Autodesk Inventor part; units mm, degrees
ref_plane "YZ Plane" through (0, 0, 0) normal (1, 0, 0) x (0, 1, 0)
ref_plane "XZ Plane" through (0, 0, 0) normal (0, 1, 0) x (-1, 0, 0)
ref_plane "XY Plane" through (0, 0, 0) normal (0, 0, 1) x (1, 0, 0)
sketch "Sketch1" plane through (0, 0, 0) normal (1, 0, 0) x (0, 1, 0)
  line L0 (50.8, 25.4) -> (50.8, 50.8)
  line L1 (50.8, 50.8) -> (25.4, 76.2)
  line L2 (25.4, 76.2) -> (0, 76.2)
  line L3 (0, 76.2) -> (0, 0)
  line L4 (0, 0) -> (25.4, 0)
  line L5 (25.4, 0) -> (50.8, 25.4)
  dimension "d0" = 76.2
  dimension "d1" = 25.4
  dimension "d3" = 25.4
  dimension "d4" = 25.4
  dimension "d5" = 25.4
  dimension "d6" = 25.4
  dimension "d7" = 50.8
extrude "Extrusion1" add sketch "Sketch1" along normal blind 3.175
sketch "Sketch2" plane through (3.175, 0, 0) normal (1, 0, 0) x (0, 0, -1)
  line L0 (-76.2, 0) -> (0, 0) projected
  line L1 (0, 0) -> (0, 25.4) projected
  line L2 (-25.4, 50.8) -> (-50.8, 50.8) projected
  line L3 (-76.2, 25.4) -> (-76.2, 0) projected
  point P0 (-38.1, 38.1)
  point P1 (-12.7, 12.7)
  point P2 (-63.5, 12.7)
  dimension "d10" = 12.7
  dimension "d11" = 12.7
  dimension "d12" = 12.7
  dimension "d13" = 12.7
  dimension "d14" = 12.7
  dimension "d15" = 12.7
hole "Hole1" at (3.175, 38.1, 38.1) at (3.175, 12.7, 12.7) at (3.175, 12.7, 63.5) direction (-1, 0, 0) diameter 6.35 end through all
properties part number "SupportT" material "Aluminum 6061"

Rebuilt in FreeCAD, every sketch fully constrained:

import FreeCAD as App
import Part
import Sketcher

V = App.Vector
Q = App.Units.Quantity

doc = App.newDocument("Part")
body = doc.addObject("PartDesign::Body", "Body")

# Sketch on YZ plane
sketch1 = body.newObject("Sketcher::SketchObject", "Sketch")
sketch1.AttachmentSupport = (doc.getObject("YZ_Plane"), [""])
sketch1.MapMode = "FlatFace"
sketch1.addGeometry([
    Part.LineSegment(V(25, 0, 0), V(51, 25, 0)),  # 0
    Part.LineSegment(V(51, 25, 0), V(51, 51, 0)),  # 1
    Part.LineSegment(V(51, 51, 0), V(25, 76, 0)),  # 2
    Part.LineSegment(V(25, 76, 0), V(0, 76, 0)),  # 3
    Part.LineSegment(V(0, 76, 0), V(0, 0, 0)),  # 4
    Part.LineSegment(V(0, 0, 0), V(25, 0, 0)),  # 5
], False)
sketch1.addConstraint([
    Sketcher.Constraint("Coincident", 0, 2, 1, 1),
    Sketcher.Constraint("Coincident", 1, 2, 2, 1),
    Sketcher.Constraint("Coincident", 2, 2, 3, 1),
    Sketcher.Constraint("Coincident", 3, 2, 4, 1),
    Sketcher.Constraint("Coincident", 4, 2, 5, 1),
    Sketcher.Constraint("Coincident", 5, 2, 0, 1),
    Sketcher.Constraint("Vertical", 1),
    Sketcher.Constraint("Horizontal", 3),
    Sketcher.Constraint("Vertical", 4),
    Sketcher.Constraint("Horizontal", 5),
    Sketcher.Constraint("Coincident", 4, 2, -1, 1),
    Sketcher.Constraint("Perpendicular", 0, 2),
    Sketcher.Constraint("Vertical", 2, 2, 5, 2),
    Sketcher.Constraint("Equal", 5, 1),
    Sketcher.Constraint("Equal", 0, 2),
    Sketcher.Constraint("DistanceX", 3, 2, 3, 1, Q("1 in")),
    Sketcher.Constraint("DistanceY", 4, 2, 4, 1, Q("3 in")),
])
pad1 = body.newObject("PartDesign::Pad", "Pad")
pad1.Profile = sketch1
pad1.Length = Q("0.125 in")

# Sketch on YZ plane
sketch2 = body.newObject("Sketcher::SketchObject", "Sketch001")
sketch2.AttachmentSupport = (doc.getObject("YZ_Plane"), [""])
sketch2.MapMode = "FlatFace"
sketch2.AttachmentOffset = App.Placement(V(0, 0, 0.125 * 25.4), App.Rotation())
sketch2.addGeometry([
    Part.Circle(V(38.1, 38.1, 0), V(0, 0, 1), 3.2),
    Part.Circle(V(12.7, 12.7, 0), V(0, 0, 1), 3.2),
    Part.Circle(V(12.7, 63.5, 0), V(0, 0, 1), 3.2),
], False)
sketch2.addConstraint([
    Sketcher.Constraint("Equal", 0, 1),
    Sketcher.Constraint("Equal", 1, 2),
    Sketcher.Constraint("Vertical", 1, 3, 2, 3),
    Sketcher.Constraint("Diameter", 0, Q("0.25 in")),
    Sketcher.Constraint("DistanceX", 1, 3, 0, 3, Q("1 in")),
    Sketcher.Constraint("DistanceY", 1, 3, 0, 3, Q("1 in")),
    Sketcher.Constraint("DistanceY", 0, 3, 2, 3, Q("1 in")),
    Sketcher.Constraint("DistanceX", -1, 1, 0, 3, Q("1.5 in")),
    Sketcher.Constraint("DistanceY", -1, 1, 0, 3, Q("1.5 in")),
])
doc.recompute()
hole = body.newObject("PartDesign::Hole", "Hole")
hole.Profile = sketch2
hole.ThreadType = "None"
hole.Diameter = Q("0.25 in")
hole.DepthType = "ThroughAll"

doc.recompute()
